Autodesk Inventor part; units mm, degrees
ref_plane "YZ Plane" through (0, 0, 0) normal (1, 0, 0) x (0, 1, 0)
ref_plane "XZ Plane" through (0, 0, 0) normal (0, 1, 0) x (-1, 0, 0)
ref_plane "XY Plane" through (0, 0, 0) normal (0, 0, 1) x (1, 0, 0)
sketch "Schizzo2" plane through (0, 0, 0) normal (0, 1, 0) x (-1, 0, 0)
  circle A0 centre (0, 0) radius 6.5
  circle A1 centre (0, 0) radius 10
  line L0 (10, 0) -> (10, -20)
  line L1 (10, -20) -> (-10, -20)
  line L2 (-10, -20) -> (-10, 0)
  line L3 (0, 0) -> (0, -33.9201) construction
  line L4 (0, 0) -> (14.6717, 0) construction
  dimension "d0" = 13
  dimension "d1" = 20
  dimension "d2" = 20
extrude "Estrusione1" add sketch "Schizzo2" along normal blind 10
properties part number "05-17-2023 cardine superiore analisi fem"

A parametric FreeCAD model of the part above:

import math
import FreeCAD as App
import Part
import Sketcher

doc = App.newDocument("Part")
body = doc.addObject("PartDesign::Body", "Body")

sketch1 = doc.addObject("Sketcher::SketchObject", "Sketch")
body.addObject(sketch1)
sketch1.AttachmentSupport = (doc.XZ_Plane, [""])
sketch1.MapMode = "FlatFace"
sketch1.addGeometry(Part.ArcOfCircle(Part.Circle(App.Vector(0, 0, 0), App.Vector(0, 0, 1), 10), math.radians(0), math.radians(180)), False)
sketch1.addGeometry(Part.LineSegment(App.Vector(10, 0, 0), App.Vector(10, -20, 0)), False)
sketch1.addGeometry(Part.LineSegment(App.Vector(10, -20, 0), App.Vector(-10, -20, 0)), False)
sketch1.addGeometry(Part.LineSegment(App.Vector(-10, -20, 0), App.Vector(-10, 0, 0)), False)
sketch1.addGeometry(Part.Circle(App.Vector(0, 0, 0), App.Vector(0, 0, 1), 6), False)
sketch1.addConstraint(Sketcher.Constraint("Tangent", 0, 1, 1, 1))
sketch1.addConstraint(Sketcher.Constraint("Coincident", 1, 2, 2, 1))
sketch1.addConstraint(Sketcher.Constraint("Coincident", 2, 2, 3, 1))
sketch1.addConstraint(Sketcher.Constraint("Tangent", 3, 2, 0, 2))
sketch1.addConstraint(Sketcher.Constraint("Vertical", 1))
sketch1.addConstraint(Sketcher.Constraint("Horizontal", 2))
sketch1.addConstraint(Sketcher.Constraint("Vertical", 3))
sketch1.addConstraint(Sketcher.Constraint("Coincident", 0, 3, -1, 1))
sketch1.addConstraint(Sketcher.Constraint("Coincident", 4, 3, -1, 1))
sketch1.addConstraint(Sketcher.Constraint("Equal", 2, 1))
sketch1.addConstraint(Sketcher.Constraint("Diameter", 4, 13.0))
sketch1.addConstraint(Sketcher.Constraint("Radius", 0, 10.0))
pad1 = doc.addObject("PartDesign::Pad", "Pad")
body.addObject(pad1)
pad1.Profile = sketch1
pad1.Length = 10
pad1.Reversed = True

doc.recompute()
